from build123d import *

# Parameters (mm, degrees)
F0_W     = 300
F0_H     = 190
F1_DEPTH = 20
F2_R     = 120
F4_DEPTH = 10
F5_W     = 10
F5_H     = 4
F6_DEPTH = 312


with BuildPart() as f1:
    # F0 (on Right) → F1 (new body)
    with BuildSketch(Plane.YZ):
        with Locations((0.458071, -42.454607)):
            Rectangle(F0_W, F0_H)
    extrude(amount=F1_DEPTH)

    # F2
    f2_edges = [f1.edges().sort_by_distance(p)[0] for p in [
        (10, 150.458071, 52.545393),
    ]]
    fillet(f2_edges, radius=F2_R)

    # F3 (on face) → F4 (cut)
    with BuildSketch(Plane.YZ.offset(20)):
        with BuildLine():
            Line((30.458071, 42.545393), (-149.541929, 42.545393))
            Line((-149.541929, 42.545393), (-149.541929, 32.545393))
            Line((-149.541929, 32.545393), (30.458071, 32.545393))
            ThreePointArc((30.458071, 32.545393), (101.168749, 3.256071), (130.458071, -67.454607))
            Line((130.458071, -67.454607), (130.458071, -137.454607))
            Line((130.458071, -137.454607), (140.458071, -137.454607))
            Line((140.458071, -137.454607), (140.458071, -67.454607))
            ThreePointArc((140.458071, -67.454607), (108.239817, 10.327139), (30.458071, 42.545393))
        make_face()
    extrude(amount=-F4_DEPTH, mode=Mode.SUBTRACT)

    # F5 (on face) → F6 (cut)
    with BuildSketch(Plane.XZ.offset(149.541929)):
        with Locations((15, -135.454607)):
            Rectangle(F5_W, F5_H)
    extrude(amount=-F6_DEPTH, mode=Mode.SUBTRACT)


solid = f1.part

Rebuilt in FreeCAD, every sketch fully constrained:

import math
import FreeCAD as App
import Part
import Sketcher
from FreeCAD import Vector
Q = App.Units.Quantity


def edges_at(feature, points):
    """Names of the edges that pass closest to the given points."""
    edges = feature.Shape.Edges
    near = lambda p: min(range(len(edges)), key=lambda i: edges[i].distToShape(Part.Vertex(*p))[0])
    return sorted({f"Edge{near(p) + 1}" for p in points})


def add_polygon(sketch, points):
    """Adds a closed chain of lines whose ends are joined by coincident constraints."""
    first, n = sketch.GeometryCount, len(points)
    for a, b in zip(points, points[1:] + points[:1]):
        sketch.addGeometry(Part.LineSegment(App.Vector(*a, 0), App.Vector(*b, 0)), False)
    for i in range(n):
        sketch.addConstraint(Sketcher.Constraint("Coincident", first + i, 2, first + (i + 1) % n, 1))

doc = App.newDocument("Part")
body = doc.addObject("PartDesign::Body", "Body")

# Sketch on YZ plane
sketch1 = doc.addObject("Sketcher::SketchObject", "Sketch")
body.addObject(sketch1)
sketch1.AttachmentSupport = (doc.YZ_Plane, [""])
sketch1.MapMode = "FlatFace"
add_polygon(sketch1, [(-150, 53), (-150, -137), (150, -137), (150, 53)])  # lines 0-3
sketch1.addConstraint(Sketcher.Constraint("Vertical", 0))
sketch1.addConstraint(Sketcher.Constraint("Horizontal", 1))
sketch1.addConstraint(Sketcher.Constraint("Vertical", 2))
sketch1.addConstraint(Sketcher.Constraint("Horizontal", 3))
sketch1.addConstraint(Sketcher.Constraint("DistanceX", 1, 1, 1, 2, Q("300 mm")))
sketch1.addConstraint(Sketcher.Constraint("DistanceY", 0, 2, 0, 1, Q("190 mm")))
sketch1.addConstraint(Sketcher.Constraint("DistanceX", 0, 2, -1, 1, Q("149.541929 mm")))
sketch1.addConstraint(Sketcher.Constraint("DistanceY", 0, 2, -1, 1, Q("137.454607 mm")))
pad1 = doc.addObject("PartDesign::Pad", "Pad")
body.addObject(pad1)
pad1.Profile = sketch1
pad1.Length = 20
doc.recompute()

fillet = doc.addObject("PartDesign::Fillet", "Fillet")
body.addObject(fillet)
fillet.Base = (pad1, edges_at(pad1, [(10, 150.458, 52.545)]))
fillet.Radius = 120

# Sketch on YZ plane
sketch2 = doc.addObject("Sketcher::SketchObject", "Sketch001")
body.addObject(sketch2)
sketch2.AttachmentSupport = (doc.YZ_Plane, [""])
sketch2.MapMode = "FlatFace"
sketch2.AttachmentOffset = App.Placement(Vector(0, 0, 20), App.Rotation())
sketch2.addGeometry(Part.LineSegment(Vector(30, 43, 0), Vector(-150, 43, 0)), False)
sketch2.addGeometry(Part.LineSegment(Vector(-150, 43, 0), Vector(-150, 33, 0)), False)
sketch2.addGeometry(Part.LineSegment(Vector(-150, 33, 0), Vector(30, 33, 0)), False)
sketch2.addGeometry(Part.ArcOfCircle(Part.Circle(Vector(30, -67, 0), Vector(0, 0, 1), 100), math.radians(0), math.radians(90)), False)
sketch2.addGeometry(Part.LineSegment(Vector(130, -67, 0), Vector(130, -137, 0)), False)
sketch2.addGeometry(Part.LineSegment(Vector(130, -137, 0), Vector(140, -137, 0)), False)
sketch2.addGeometry(Part.LineSegment(Vector(140, -137, 0), Vector(140, -67, 0)), False)
sketch2.addGeometry(Part.ArcOfCircle(Part.Circle(Vector(30, -67, 0), Vector(0, 0, 1), 110), math.radians(0), math.radians(90)), False)
sketch2.addConstraint(Sketcher.Constraint("Coincident", 0, 2, 1, 1))
sketch2.addConstraint(Sketcher.Constraint("Coincident", 1, 2, 2, 1))
sketch2.addConstraint(Sketcher.Constraint("Tangent", 2, 2, 3, 2))
sketch2.addConstraint(Sketcher.Constraint("Tangent", 3, 1, 4, 1))
sketch2.addConstraint(Sketcher.Constraint("Coincident", 4, 2, 5, 1))
sketch2.addConstraint(Sketcher.Constraint("Coincident", 5, 2, 6, 1))
sketch2.addConstraint(Sketcher.Constraint("Tangent", 6, 2, 7, 1))
sketch2.addConstraint(Sketcher.Constraint("Tangent", 7, 2, 0, 1))
sketch2.addConstraint(Sketcher.Constraint("Horizontal", 0))
sketch2.addConstraint(Sketcher.Constraint("Vertical", 1))
sketch2.addConstraint(Sketcher.Constraint("Horizontal", 2))
sketch2.addConstraint(Sketcher.Constraint("Vertical", 4))
sketch2.addConstraint(Sketcher.Constraint("Horizontal", 5))
sketch2.addConstraint(Sketcher.Constraint("Vertical", 6))
sketch2.addConstraint(Sketcher.Constraint("Coincident", 7, 3, 3, 3))
sketch2.addConstraint(Sketcher.Constraint("Radius", 3, Q("100 mm")))
sketch2.addConstraint(Sketcher.Constraint("Radius", 7, Q("110 mm")))
sketch2.addConstraint(Sketcher.Constraint("DistanceX", 0, 2, 0, 1, Q("180 mm")))
sketch2.addConstraint(Sketcher.Constraint("DistanceY", 4, 2, 4, 1, Q("70 mm")))
sketch2.addConstraint(Sketcher.Constraint("DistanceX", -1, 1, 3, 3, Q("30.458071 mm")))
sketch2.addConstraint(Sketcher.Constraint("DistanceY", 3, 3, -1, 1, Q("67.454607 mm")))
pocket1 = doc.addObject("PartDesign::Pocket", "Pocket")
body.addObject(pocket1)
pocket1.Profile = sketch2
pocket1.Length = 10

# Sketch on XZ plane
sketch3 = doc.addObject("Sketcher::SketchObject", "Sketch002")
body.addObject(sketch3)
sketch3.AttachmentSupport = (doc.XZ_Plane, [""])
sketch3.MapMode = "FlatFace"
sketch3.AttachmentOffset = App.Placement(Vector(0, 0, 149.541929), App.Rotation())
add_polygon(sketch3, [(10, -133.5), (10, -137.5), (20, -137.5), (20, -133.5)])  # lines 0-3
sketch3.addConstraint(Sketcher.Constraint("Vertical", 0))
sketch3.addConstraint(Sketcher.Constraint("Horizontal", 1))
sketch3.addConstraint(Sketcher.Constraint("Vertical", 2))
sketch3.addConstraint(Sketcher.Constraint("Horizontal", 3))
sketch3.addConstraint(Sketcher.Constraint("DistanceX", 1, 1, 1, 2, Q("10 mm")))
sketch3.addConstraint(Sketcher.Constraint("DistanceY", 0, 2, 0, 1, Q("4 mm")))
sketch3.addConstraint(Sketcher.Constraint("DistanceX", -1, 1, 0, 2, Q("10 mm")))
sketch3.addConstraint(Sketcher.Constraint("DistanceY", 0, 2, -1, 1, Q("137.454607 mm")))
pocket2 = doc.addObject("PartDesign::Pocket", "Pocket001")
body.addObject(pocket2)
pocket2.Profile = sketch3
pocket2.Length = 312

doc.recompute()
